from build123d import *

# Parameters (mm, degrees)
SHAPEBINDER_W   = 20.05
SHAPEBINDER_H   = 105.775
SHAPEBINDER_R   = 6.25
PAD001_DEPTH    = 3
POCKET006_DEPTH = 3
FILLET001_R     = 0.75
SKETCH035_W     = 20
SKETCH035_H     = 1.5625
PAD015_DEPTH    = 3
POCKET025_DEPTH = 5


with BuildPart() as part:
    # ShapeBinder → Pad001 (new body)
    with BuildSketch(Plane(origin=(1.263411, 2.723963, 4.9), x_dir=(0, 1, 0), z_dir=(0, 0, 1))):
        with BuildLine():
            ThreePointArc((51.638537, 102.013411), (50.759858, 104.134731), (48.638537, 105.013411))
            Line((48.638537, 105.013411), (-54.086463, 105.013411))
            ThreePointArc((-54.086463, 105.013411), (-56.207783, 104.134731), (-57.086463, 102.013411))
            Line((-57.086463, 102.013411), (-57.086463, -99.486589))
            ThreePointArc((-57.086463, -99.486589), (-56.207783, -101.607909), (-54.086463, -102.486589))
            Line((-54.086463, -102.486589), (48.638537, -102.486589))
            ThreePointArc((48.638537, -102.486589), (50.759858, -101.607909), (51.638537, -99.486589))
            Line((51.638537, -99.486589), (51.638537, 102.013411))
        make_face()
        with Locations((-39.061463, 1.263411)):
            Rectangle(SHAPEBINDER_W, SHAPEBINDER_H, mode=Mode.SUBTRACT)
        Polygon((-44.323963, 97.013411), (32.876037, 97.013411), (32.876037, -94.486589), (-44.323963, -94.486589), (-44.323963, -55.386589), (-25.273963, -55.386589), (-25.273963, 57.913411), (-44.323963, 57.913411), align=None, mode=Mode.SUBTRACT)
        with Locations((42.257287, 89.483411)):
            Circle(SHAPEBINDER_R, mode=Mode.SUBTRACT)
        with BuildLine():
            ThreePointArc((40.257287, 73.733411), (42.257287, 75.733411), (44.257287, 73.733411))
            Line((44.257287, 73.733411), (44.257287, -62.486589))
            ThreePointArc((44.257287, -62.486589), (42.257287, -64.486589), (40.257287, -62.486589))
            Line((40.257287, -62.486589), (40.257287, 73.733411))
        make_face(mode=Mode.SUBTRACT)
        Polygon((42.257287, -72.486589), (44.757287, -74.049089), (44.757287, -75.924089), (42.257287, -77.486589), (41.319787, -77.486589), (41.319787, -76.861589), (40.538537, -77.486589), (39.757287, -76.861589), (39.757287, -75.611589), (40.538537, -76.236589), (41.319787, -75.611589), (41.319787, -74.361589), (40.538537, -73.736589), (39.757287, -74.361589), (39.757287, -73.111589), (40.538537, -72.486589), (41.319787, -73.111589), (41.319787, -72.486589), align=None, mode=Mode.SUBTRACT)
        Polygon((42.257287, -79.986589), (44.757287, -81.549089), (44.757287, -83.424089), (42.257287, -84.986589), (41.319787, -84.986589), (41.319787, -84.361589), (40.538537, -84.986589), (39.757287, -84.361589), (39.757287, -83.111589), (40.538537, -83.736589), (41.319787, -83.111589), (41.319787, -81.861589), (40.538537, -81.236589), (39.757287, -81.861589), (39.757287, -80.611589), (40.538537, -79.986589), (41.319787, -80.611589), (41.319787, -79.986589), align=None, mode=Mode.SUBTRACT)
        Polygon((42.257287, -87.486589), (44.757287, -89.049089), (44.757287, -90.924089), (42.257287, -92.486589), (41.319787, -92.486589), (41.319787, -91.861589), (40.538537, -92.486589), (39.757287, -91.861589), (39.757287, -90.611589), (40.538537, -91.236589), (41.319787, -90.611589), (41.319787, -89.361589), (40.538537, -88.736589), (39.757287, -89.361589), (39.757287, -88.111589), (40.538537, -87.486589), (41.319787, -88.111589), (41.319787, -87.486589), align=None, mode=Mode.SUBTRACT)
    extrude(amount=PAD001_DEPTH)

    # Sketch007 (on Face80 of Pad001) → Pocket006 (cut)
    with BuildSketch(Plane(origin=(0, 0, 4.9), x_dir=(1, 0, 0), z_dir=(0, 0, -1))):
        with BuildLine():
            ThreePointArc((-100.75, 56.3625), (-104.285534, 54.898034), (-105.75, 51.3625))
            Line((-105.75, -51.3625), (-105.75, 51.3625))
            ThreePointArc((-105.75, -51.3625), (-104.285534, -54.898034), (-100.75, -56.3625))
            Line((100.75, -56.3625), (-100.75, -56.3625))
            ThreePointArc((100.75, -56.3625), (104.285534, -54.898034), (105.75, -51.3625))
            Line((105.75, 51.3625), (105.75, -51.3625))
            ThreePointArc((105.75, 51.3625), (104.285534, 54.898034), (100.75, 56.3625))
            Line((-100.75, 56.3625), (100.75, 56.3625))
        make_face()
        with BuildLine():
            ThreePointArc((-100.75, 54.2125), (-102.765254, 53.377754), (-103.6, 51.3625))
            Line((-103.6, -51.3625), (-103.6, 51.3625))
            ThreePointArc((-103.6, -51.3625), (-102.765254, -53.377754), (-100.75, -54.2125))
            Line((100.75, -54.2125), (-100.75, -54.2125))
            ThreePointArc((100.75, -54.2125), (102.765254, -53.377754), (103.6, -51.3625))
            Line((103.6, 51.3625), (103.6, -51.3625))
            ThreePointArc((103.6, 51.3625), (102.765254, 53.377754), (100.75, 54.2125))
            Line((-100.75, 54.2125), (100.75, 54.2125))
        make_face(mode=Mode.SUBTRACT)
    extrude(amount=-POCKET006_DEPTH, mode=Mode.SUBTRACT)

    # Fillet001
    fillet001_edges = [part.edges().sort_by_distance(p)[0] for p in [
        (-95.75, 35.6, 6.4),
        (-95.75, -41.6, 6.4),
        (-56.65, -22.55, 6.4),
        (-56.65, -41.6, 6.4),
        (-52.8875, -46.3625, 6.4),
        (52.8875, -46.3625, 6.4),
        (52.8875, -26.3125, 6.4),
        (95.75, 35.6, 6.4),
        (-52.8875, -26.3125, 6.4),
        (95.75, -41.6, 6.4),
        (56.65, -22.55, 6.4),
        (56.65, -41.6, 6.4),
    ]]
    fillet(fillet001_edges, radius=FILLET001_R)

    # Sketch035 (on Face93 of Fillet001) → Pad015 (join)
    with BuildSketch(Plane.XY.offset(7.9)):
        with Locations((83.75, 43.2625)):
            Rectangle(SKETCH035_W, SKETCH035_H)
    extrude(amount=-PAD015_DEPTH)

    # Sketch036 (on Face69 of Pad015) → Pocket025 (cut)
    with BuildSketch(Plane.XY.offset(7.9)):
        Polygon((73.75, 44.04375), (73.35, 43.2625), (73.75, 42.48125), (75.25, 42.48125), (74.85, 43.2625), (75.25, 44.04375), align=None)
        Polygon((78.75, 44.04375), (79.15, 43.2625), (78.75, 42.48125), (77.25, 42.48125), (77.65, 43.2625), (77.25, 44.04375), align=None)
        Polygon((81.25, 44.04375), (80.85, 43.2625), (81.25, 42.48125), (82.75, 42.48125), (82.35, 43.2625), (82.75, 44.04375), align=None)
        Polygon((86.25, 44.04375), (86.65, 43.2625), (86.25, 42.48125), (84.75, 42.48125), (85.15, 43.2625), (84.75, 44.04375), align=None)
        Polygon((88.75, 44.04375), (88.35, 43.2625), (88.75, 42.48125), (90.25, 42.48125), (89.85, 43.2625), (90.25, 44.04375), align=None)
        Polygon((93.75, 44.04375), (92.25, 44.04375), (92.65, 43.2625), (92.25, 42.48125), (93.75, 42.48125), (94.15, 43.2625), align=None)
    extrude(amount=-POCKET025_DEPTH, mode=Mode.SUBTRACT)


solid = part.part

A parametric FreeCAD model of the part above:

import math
import FreeCAD as App
import Part
import Sketcher

V = App.Vector
Q = App.Units.Quantity


def edges_at(feature, points):
    """Names of the edges that pass closest to the given points."""
    edges = feature.Shape.Edges
    near = lambda p: min(range(len(edges)), key=lambda i: edges[i].distToShape(Part.Vertex(*p))[0])
    return sorted({f"Edge{near(p) + 1}" for p in points})

doc = App.newDocument("Part")
body = doc.addObject("PartDesign::Body", "Body")

sketch1 = body.newObject("Sketcher::SketchObject", "Sketch")
sketch1.AttachmentSupport = (doc.getObject("XY_Plane"), [""])
sketch1.MapMode = "FlatFace"
sketch1.AttachmentOffset = App.Placement(V(0, 0, 4.9), App.Rotation())
sketch1.addGeometry([
    Part.ArcOfCircle(Part.Circle(V(-100.8, 51.4, 0), V(0, 0, 1), 3), math.radians(90), math.radians(180)),
    Part.LineSegment(V(-103.8, 51.4, 0), V(-103.8, -51.4, 0)),
    Part.ArcOfCircle(Part.Circle(V(-100.7, -51.4, 0), V(0, 0, 1), 3), math.radians(-180), math.radians(-90)),
    Part.LineSegment(V(-100.8, -54.4, 0), V(100.8, -54.4, 0)),
    Part.ArcOfCircle(Part.Circle(V(100.7, -51.4, 0), V(0, 0, 1), 3), math.radians(-90), math.radians(0)),
    Part.LineSegment(V(103.8, -51.4, 0), V(103.8, 51.4, 0)),
    Part.ArcOfCircle(Part.Circle(V(100.8, 51.4, 0), V(0, 0, 1), 3), math.radians(0), math.radians(90)),
    Part.LineSegment(V(100.8, 54.4, 0), V(-100.8, 54.4, 0)),
    Part.LineSegment(V(88.8, 44, 0), V(88.8, 45, 0)),
    Part.LineSegment(V(88.8, 45, 0), V(90.3, 47.5, 0)),
    Part.LineSegment(V(90.3, 47.5, 0), V(92.2, 47.5, 0)),
    Part.LineSegment(V(92.2, 47.5, 0), V(93.8, 45, 0)),
    Part.LineSegment(V(93.8, 45, 0), V(93.8, 44, 0)),
    Part.LineSegment(V(93.8, 44, 0), V(93.1, 44, 0)),
    Part.LineSegment(V(93.1, 44, 0), V(93.8, 43.3, 0)),
    Part.LineSegment(V(93.8, 43.3, 0), V(93.1, 42.5, 0)),
    Part.LineSegment(V(93.1, 42.5, 0), V(91.9, 42.5, 0)),
    Part.LineSegment(V(91.9, 42.5, 0), V(92.5, 43.3, 0)),
    Part.LineSegment(V(92.5, 43.3, 0), V(91.9, 44, 0)),
    Part.LineSegment(V(91.9, 44, 0), V(90.6, 44, 0)),
    Part.LineSegment(V(90.6, 44, 0), V(90, 43.3, 0)),
    Part.LineSegment(V(90, 43.3, 0), V(90.6, 42.5, 0)),
    Part.LineSegment(V(90.6, 42.5, 0), V(89.4, 42.5, 0)),
    Part.LineSegment(V(89.4, 42.5, 0), V(88.8, 43.3, 0)),
    Part.LineSegment(V(88.8, 43.3, 0), V(89.4, 44, 0)),
    Part.LineSegment(V(89.4, 44, 0), V(88.8, 44, 0)),
    Part.LineSegment(V(81.2, 44, 0), V(81.2, 45, 0)),
    Part.LineSegment(V(81.2, 45, 0), V(82.8, 47.5, 0)),
    Part.LineSegment(V(82.8, 47.5, 0), V(84.7, 47.5, 0)),
    Part.LineSegment(V(84.7, 47.5, 0), V(86.2, 45, 0)),
    Part.LineSegment(V(86.2, 45, 0), V(86.2, 44, 0)),
    Part.LineSegment(V(86.2, 44, 0), V(85.6, 44, 0)),
    Part.LineSegment(V(85.6, 44, 0), V(86.2, 43.3, 0)),
    Part.LineSegment(V(86.2, 43.3, 0), V(85.6, 42.5, 0)),
    Part.LineSegment(V(85.6, 42.5, 0), V(84.4, 42.5, 0)),
    Part.LineSegment(V(84.4, 42.5, 0), V(85, 43.3, 0)),
    Part.LineSegment(V(85, 43.3, 0), V(84.4, 44, 0)),
    Part.LineSegment(V(84.4, 44, 0), V(83.1, 44, 0)),
    Part.LineSegment(V(83.1, 44, 0), V(82.5, 43.3, 0)),
    Part.LineSegment(V(82.5, 43.3, 0), V(83.1, 42.5, 0)),
    Part.LineSegment(V(83.1, 42.5, 0), V(81.9, 42.5, 0)),
    Part.LineSegment(V(81.9, 42.5, 0), V(81.2, 43.3, 0)),
    Part.LineSegment(V(81.2, 43.3, 0), V(81.9, 44, 0)),
    Part.LineSegment(V(81.9, 44, 0), V(81.2, 44, 0)),
    Part.LineSegment(V(73.8, 44, 0), V(73.8, 45, 0)),
    Part.LineSegment(V(73.8, 45, 0), V(75.3, 47.5, 0)),
    Part.LineSegment(V(75.3, 47.5, 0), V(77.2, 47.5, 0)),
    Part.LineSegment(V(77.2, 47.5, 0), V(78.8, 45, 0)),
    Part.LineSegment(V(78.8, 45, 0), V(78.8, 44, 0)),
    Part.LineSegment(V(78.8, 44, 0), V(78.1, 44, 0)),
    Part.LineSegment(V(78.1, 44, 0), V(78.8, 43.3, 0)),
    Part.LineSegment(V(78.8, 43.3, 0), V(78.1, 42.5, 0)),
    Part.LineSegment(V(78.1, 42.5, 0), V(76.9, 42.5, 0)),
    Part.LineSegment(V(76.9, 42.5, 0), V(77.5, 43.3, 0)),
    Part.LineSegment(V(77.5, 43.3, 0), V(76.9, 44, 0)),
    Part.LineSegment(V(76.9, 44, 0), V(75.6, 44, 0)),
    Part.LineSegment(V(75.6, 44, 0), V(75, 43.3, 0)),
    Part.LineSegment(V(75, 43.3, 0), V(75.6, 42.5, 0)),
    Part.LineSegment(V(75.6, 42.5, 0), V(74.4, 42.5, 0)),
    Part.LineSegment(V(74.4, 42.5, 0), V(73.8, 43.3, 0)),
    Part.LineSegment(V(73.8, 43.3, 0), V(74.4, 44, 0)),
    Part.LineSegment(V(74.4, 44, 0), V(73.8, 44, 0)),
    Part.LineSegment(V(52.9, -26.3, 0), V(52.9, -46.4, 0)),
    Part.LineSegment(V(52.9, -46.4, 0), V(-52.9, -46.4, 0)),
    Part.LineSegment(V(-52.9, -46.4, 0), V(-52.9, -26.3, 0)),
    Part.LineSegment(V(-52.9, -26.3, 0), V(52.9, -26.3, 0)),
    Part.LineSegment(V(-56.6, -41.6, 0), V(-95.8, -41.6, 0)),
    Part.LineSegment(V(-95.8, -41.6, 0), V(-95.8, 35.6, 0)),
    Part.LineSegment(V(-95.8, 35.6, 0), V(95.8, 35.6, 0)),
    Part.LineSegment(V(95.8, 35.6, 0), V(95.8, -41.6, 0)),
    Part.LineSegment(V(95.8, -41.6, 0), V(56.6, -41.6, 0)),
    Part.LineSegment(V(56.6, -41.6, 0), V(56.6, -22.6, 0)),
    Part.LineSegment(V(56.6, -22.6, 0), V(-56.6, -22.6, 0)),
    Part.LineSegment(V(-56.6, -22.6, 0), V(-56.6, -41.6, 0)),
    Part.LineSegment(V(63.8, 43, 0), V(-72.5, 43, 0)),
    Part.ArcOfCircle(Part.Circle(V(-72.5, 45, 0), V(0, 0, 1), 2), math.radians(90), math.radians(270)),
    Part.LineSegment(V(-72.5, 47, 0), V(63.8, 47, 0)),
    Part.ArcOfCircle(Part.Circle(V(63.8, 45, 0), V(0, 0, 1), 2), math.radians(-90), math.radians(90)),
    Part.Circle(V(-88.2, 45, 0), V(0, 0, 1), 6.2),
], False)
sketch1.addConstraint([
    Sketcher.Constraint("Tangent", 0, 2, 1, 1),
    Sketcher.Constraint("Tangent", 1, 2, 2, 1),
    Sketcher.Constraint("Tangent", 2, 2, 3, 1),
    Sketcher.Constraint("Tangent", 3, 2, 4, 1),
    Sketcher.Constraint("Tangent", 4, 2, 5, 1),
    Sketcher.Constraint("Tangent", 5, 2, 6, 1),
    Sketcher.Constraint("Tangent", 6, 2, 7, 1),
    Sketcher.Constraint("Tangent", 7, 2, 0, 1),
    Sketcher.Constraint("Coincident", 8, 2, 9, 1),
    Sketcher.Constraint("Coincident", 9, 2, 10, 1),
    Sketcher.Constraint("Coincident", 10, 2, 11, 1),
    Sketcher.Constraint("Coincident", 11, 2, 12, 1),
    Sketcher.Constraint("Coincident", 12, 2, 13, 1),
    Sketcher.Constraint("Coincident", 13, 2, 14, 1),
    Sketcher.Constraint("Coincident", 14, 2, 15, 1),
    Sketcher.Constraint("Coincident", 15, 2, 16, 1),
    Sketcher.Constraint("Coincident", 16, 2, 17, 1),
    Sketcher.Constraint("Coincident", 17, 2, 18, 1),
    Sketcher.Constraint("Coincident", 18, 2, 19, 1),
    Sketcher.Constraint("Coincident", 19, 2, 20, 1),
    Sketcher.Constraint("Coincident", 20, 2, 21, 1),
    Sketcher.Constraint("Coincident", 21, 2, 22, 1),
    Sketcher.Constraint("Coincident", 22, 2, 23, 1),
    Sketcher.Constraint("Coincident", 23, 2, 24, 1),
    Sketcher.Constraint("Coincident", 24, 2, 25, 1),
    Sketcher.Constraint("Coincident", 25, 2, 8, 1),
    Sketcher.Constraint("Coincident", 26, 2, 27, 1),
    Sketcher.Constraint("Coincident", 27, 2, 28, 1),
    Sketcher.Constraint("Coincident", 28, 2, 29, 1),
    Sketcher.Constraint("Coincident", 29, 2, 30, 1),
    Sketcher.Constraint("Coincident", 30, 2, 31, 1),
    Sketcher.Constraint("Coincident", 31, 2, 32, 1),
    Sketcher.Constraint("Coincident", 32, 2, 33, 1),
    Sketcher.Constraint("Coincident", 33, 2, 34, 1),
    Sketcher.Constraint("Coincident", 34, 2, 35, 1),
    Sketcher.Constraint("Coincident", 35, 2, 36, 1),
    Sketcher.Constraint("Coincident", 36, 2, 37, 1),
    Sketcher.Constraint("Coincident", 37, 2, 38, 1),
    Sketcher.Constraint("Coincident", 38, 2, 39, 1),
    Sketcher.Constraint("Coincident", 39, 2, 40, 1),
    Sketcher.Constraint("Coincident", 40, 2, 41, 1),
    Sketcher.Constraint("Coincident", 41, 2, 42, 1),
    Sketcher.Constraint("Coincident", 42, 2, 43, 1),
    Sketcher.Constraint("Coincident", 43, 2, 26, 1),
    Sketcher.Constraint("Coincident", 44, 2, 45, 1),
    Sketcher.Constraint("Coincident", 45, 2, 46, 1),
    Sketcher.Constraint("Coincident", 46, 2, 47, 1),
    Sketcher.Constraint("Coincident", 47, 2, 48, 1),
    Sketcher.Constraint("Coincident", 48, 2, 49, 1),
    Sketcher.Constraint("Coincident", 49, 2, 50, 1),
    Sketcher.Constraint("Coincident", 50, 2, 51, 1),
    Sketcher.Constraint("Coincident", 51, 2, 52, 1),
    Sketcher.Constraint("Coincident", 52, 2, 53, 1),
    Sketcher.Constraint("Coincident", 53, 2, 54, 1),
    Sketcher.Constraint("Coincident", 54, 2, 55, 1),
    Sketcher.Constraint("Coincident", 55, 2, 56, 1),
    Sketcher.Constraint("Coincident", 56, 2, 57, 1),
    Sketcher.Constraint("Coincident", 57, 2, 58, 1),
    Sketcher.Constraint("Coincident", 58, 2, 59, 1),
    Sketcher.Constraint("Coincident", 59, 2, 60, 1),
    Sketcher.Constraint("Coincident", 60, 2, 61, 1),
    Sketcher.Constraint("Coincident", 61, 2, 44, 1),
    Sketcher.Constraint("Coincident", 62, 2, 63, 1),
    Sketcher.Constraint("Coincident", 63, 2, 64, 1),
    Sketcher.Constraint("Coincident", 64, 2, 65, 1),
    Sketcher.Constraint("Coincident", 65, 2, 62, 1),
    Sketcher.Constraint("Coincident", 66, 2, 67, 1),
    Sketcher.Constraint("Coincident", 67, 2, 68, 1),
    Sketcher.Constraint("Coincident", 68, 2, 69, 1),
    Sketcher.Constraint("Coincident", 69, 2, 70, 1),
    Sketcher.Constraint("Coincident", 70, 2, 71, 1),
    Sketcher.Constraint("Coincident", 71, 2, 72, 1),
    Sketcher.Constraint("Coincident", 72, 2, 73, 1),
    Sketcher.Constraint("Coincident", 73, 2, 66, 1),
    Sketcher.Constraint("Tangent", 74, 2, 75, 2),
    Sketcher.Constraint("Tangent", 75, 1, 76, 1),
    Sketcher.Constraint("Tangent", 76, 2, 77, 2),
    Sketcher.Constraint("Tangent", 77, 1, 74, 1),
    Sketcher.Constraint("Vertical", 1),
    Sketcher.Constraint("Horizontal", 3),
    Sketcher.Constraint("Vertical", 5),
    Sketcher.Constraint("Horizontal", 7),
    Sketcher.Constraint("Vertical", 8),
    Sketcher.Constraint("Horizontal", 10),
    Sketcher.Constraint("Vertical", 12),
    Sketcher.Constraint("Horizontal", 13),
    Sketcher.Constraint("Horizontal", 16),
    Sketcher.Constraint("Horizontal", 19),
    Sketcher.Constraint("Horizontal", 22),
    Sketcher.Constraint("Horizontal", 25),
    Sketcher.Constraint("Vertical", 26),
    Sketcher.Constraint("Horizontal", 28),
    Sketcher.Constraint("Vertical", 30),
    Sketcher.Constraint("Horizontal", 31),
    Sketcher.Constraint("Horizontal", 34),
    Sketcher.Constraint("Horizontal", 37),
    Sketcher.Constraint("Horizontal", 40),
    Sketcher.Constraint("Horizontal", 43),
    Sketcher.Constraint("Vertical", 44),
    Sketcher.Constraint("Horizontal", 46),
    Sketcher.Constraint("Vertical", 48),
    Sketcher.Constraint("Horizontal", 49),
    Sketcher.Constraint("Horizontal", 52),
    Sketcher.Constraint("Horizontal", 55),
    Sketcher.Constraint("Horizontal", 58),
    Sketcher.Constraint("Horizontal", 61),
    Sketcher.Constraint("Vertical", 62),
    Sketcher.Constraint("Horizontal", 63),
    Sketcher.Constraint("Vertical", 64),
    Sketcher.Constraint("Horizontal", 65),
    Sketcher.Constraint("Horizontal", 66),
    Sketcher.Constraint("Vertical", 67),
    Sketcher.Constraint("Horizontal", 68),
    Sketcher.Constraint("Vertical", 69),
    Sketcher.Constraint("Horizontal", 70),
    Sketcher.Constraint("Vertical", 71),
    Sketcher.Constraint("Horizontal", 72),
    Sketcher.Constraint("Vertical", 73),
    Sketcher.Constraint("Horizontal", 74),
    Sketcher.Constraint("Horizontal", 76),
    Sketcher.Constraint("Equal", 0, 2),
    Sketcher.Constraint("Equal", 2, 4),
    Sketcher.Constraint("Equal", 4, 6),
    Sketcher.Constraint("Symmetric", 0, 3, 4, 3, -1, 1),
    Sketcher.Constraint("Symmetric", 66, 2, 69, 2, -2),
    Sketcher.Constraint("Parallel", 15, 17),
    Sketcher.Constraint("Parallel", 14, 18),
    Sketcher.Constraint("Parallel", 17, 20),
    Sketcher.Constraint("Parallel", 18, 21),
    Sketcher.Constraint("Parallel", 21, 23),
    Sketcher.Constraint("Parallel", 20, 24),
    Sketcher.Constraint("Parallel", 9, 27),
    Sketcher.Constraint("Parallel", 11, 29),
    Sketcher.Constraint("Parallel", 23, 32),
    Sketcher.Constraint("Parallel", 24, 33),
    Sketcher.Constraint("Parallel", 33, 35),
    Sketcher.Constraint("Parallel", 32, 36),
    Sketcher.Constraint("Parallel", 35, 38),
    Sketcher.Constraint("Parallel", 36, 39),
    Sketcher.Constraint("Parallel", 39, 41),
    Sketcher.Constraint("Parallel", 38, 42),
    Sketcher.Constraint("Parallel", 27, 45),
    Sketcher.Constraint("Parallel", 29, 47),
    Sketcher.Constraint("Parallel", 41, 50),
    Sketcher.Constraint("Parallel", 42, 51),
    Sketcher.Constraint("Parallel", 51, 53),
    Sketcher.Constraint("Parallel", 50, 54),
    Sketcher.Constraint("Parallel", 53, 56),
    Sketcher.Constraint("Parallel", 54, 57),
    Sketcher.Constraint("Parallel", 57, 59),
    Sketcher.Constraint("Parallel", 56, 60),
    Sketcher.Constraint("Horizontal", 77, 3, 78, 3),
    Sketcher.Constraint("Horizontal", 78, 3, 8, 2),
    Sketcher.Constraint("Horizontal", 8, 2, 11, 2),
    Sketcher.Constraint("Horizontal", 14, 2, 17, 2),
    Sketcher.Constraint("Horizontal", 13, 2, 18, 2),
    Sketcher.Constraint("Horizontal", 17, 2, 20, 2),
    Sketcher.Constraint("Horizontal", 16, 2, 21, 2),
    Sketcher.Constraint("Horizontal", 20, 2, 23, 2),
    Sketcher.Constraint("Horizontal", 19, 2, 24, 2),
    Sketcher.Constraint("Horizontal", 11, 2, 26, 2),
    Sketcher.Constraint("Horizontal", 10, 2, 27, 2),
    Sketcher.Constraint("Horizontal", 26, 2, 29, 2),
    Sketcher.Constraint("Horizontal", 25, 2, 30, 2),
    Sketcher.Constraint("Horizontal", 23, 2, 32, 2),
    Sketcher.Constraint("Horizontal", 22, 2, 33, 2),
    Sketcher.Constraint("Horizontal", 32, 2, 35, 2),
    Sketcher.Constraint("Horizontal", 31, 2, 36, 2),
    Sketcher.Constraint("Horizontal", 35, 2, 38, 2),
    Sketcher.Constraint("Horizontal", 34, 2, 39, 2),
    Sketcher.Constraint("Horizontal", 38, 2, 41, 2),
    Sketcher.Constraint("Horizontal", 37, 2, 42, 2),
    Sketcher.Constraint("Horizontal", 29, 2, 44, 2),
    Sketcher.Constraint("Horizontal", 28, 2, 45, 2),
    Sketcher.Constraint("Horizontal", 44, 2, 47, 2),
    Sketcher.Constraint("Horizontal", 43, 2, 48, 2),
    Sketcher.Constraint("Horizontal", 41, 2, 50, 2),
    Sketcher.Constraint("Horizontal", 40, 2, 51, 2),
    Sketcher.Constraint("Horizontal", 50, 2, 53, 2),
    Sketcher.Constraint("Horizontal", 49, 2, 54, 2),
    Sketcher.Constraint("Horizontal", 53, 2, 56, 2),
    Sketcher.Constraint("Horizontal", 52, 2, 57, 2),
    Sketcher.Constraint("Horizontal", 56, 2, 59, 2),
    Sketcher.Constraint("Horizontal", 55, 2, 60, 2),
    Sketcher.Constraint("Vertical", 12, 2, 14, 2),
    Sketcher.Constraint("Vertical", 13, 2, 15, 2),
    Sketcher.Constraint("Vertical", 19, 2, 21, 2),
    Sketcher.Constraint("Vertical", 8, 2, 23, 2),
    Sketcher.Constraint("Vertical", 30, 2, 32, 2),
    Sketcher.Constraint("Vertical", 26, 2, 41, 2),
    Sketcher.Constraint("Vertical", 48, 2, 50, 2),
    Sketcher.Constraint("Vertical", 44, 2, 59, 2),
    Sketcher.Constraint("Equal", 16, 19),
    Sketcher.Constraint("Equal", 19, 22),
    Sketcher.Constraint("Equal", 10, 28),
    Sketcher.Constraint("Equal", 22, 34),
    Sketcher.Constraint("Equal", 34, 37),
    Sketcher.Constraint("Equal", 28, 46),
    Sketcher.Constraint("Equal", 40, 52),
    Sketcher.Constraint("Equal", 52, 55),
    Sketcher.Constraint("Equal", 66, 70),
    Sketcher.Constraint("Equal", 9, 11),
    Sketcher.Constraint("Radius", 0, Q("2.999999 mm")),
    Sketcher.Constraint("Radius", 75, Q("2 mm")),
    Sketcher.Constraint("Diameter", 78, Q("12.5 mm")),
    Sketcher.Constraint("DistanceX", 3, 1, 3, 2, Q("201.5 mm")),
    Sketcher.Constraint("DistanceX", 66, 2, 66, 1, Q("39.1 mm")),
    Sketcher.Constraint("DistanceX", 68, 1, 68, 2, Q("191.5 mm")),
    Sketcher.Constraint("DistanceY", 67, 1, 67, 2, Q("77.2 mm")),
    Sketcher.Constraint("DistanceX", -1, 1, 20, 2, Q("90 mm")),
    Sketcher.Constraint("DistanceX", -1, 1, 35, 2, Q("85 mm")),
    Sketcher.Constraint("DistanceX", -1, 1, 56, 2, Q("75 mm")),
    Sketcher.Constraint("DistanceX", 16, 2, 16, 1, Q("1.25 mm")),
    Sketcher.Constraint("DistanceX", 74, 2, 74, 1, Q("136.22 mm")),
    Sketcher.Constraint("DistanceY", 62, 2, 62, 1, Q("20.05 mm")),
    Sketcher.Constraint("DistanceY", 71, 1, 71, 2, Q("19.05 mm")),
    Sketcher.Constraint("DistanceX", -1, 1, 17, 2, Q("92.5 mm")),
    Sketcher.Constraint("DistanceY", 66, 2, -1, 1, Q("41.6 mm")),
    Sketcher.Constraint("DistanceX", 10, 1, 10, 2, Q("1.875 mm")),
    Sketcher.Constraint("DistanceX", 63, 2, 63, 1, Q("105.775 mm")),
    Sketcher.Constraint("DistanceY", 1, 2, 1, 1, Q("102.725 mm")),
    Sketcher.Constraint("DistanceX", 75, 3, -1, 1, Q("72.47 mm")),
    Sketcher.Constraint("DistanceX", 78, 3, -1, 1, Q("88.22 mm")),
    Sketcher.Constraint("DistanceY", 8, 1, 8, 2, Q("0.9375 mm")),
    Sketcher.Constraint("DistanceY", -1, 1, 14, 2, Q("43.2625 mm")),
    Sketcher.Constraint("DistanceX", -1, 1, 62, 2, Q("52.8875 mm")),
    Sketcher.Constraint("DistanceY", 62, 2, -1, 1, Q("46.3625 mm")),
    Sketcher.Constraint("Distance", 9, Q("2.948119 mm")),
    Sketcher.Constraint("Distance", 14, Q("1.000488 mm")),
])
pad1 = body.newObject("PartDesign::Pad", "Pad")
pad1.Profile = sketch1
pad1.Length = 3

sketch2 = body.newObject("Sketcher::SketchObject", "Sketch001")
sketch2.AttachmentSupport = (doc.getObject("XY_Plane"), [""])
sketch2.MapMode = "FlatFace"
sketch2.AttachmentOffset = App.Placement(V(0, 0, 4.9), App.Rotation())
sketch2.addGeometry([
    Part.ArcOfCircle(Part.Circle(V(-100.8, -51.4, 0), V(0, 0, 1), 5), math.radians(180), math.radians(270)),
    Part.LineSegment(V(-105.8, -51.4, 0), V(-105.8, 51.4, 0)),
    Part.ArcOfCircle(Part.Circle(V(-100.8, 51.4, 0), V(0, 0, 1), 5), math.radians(90), math.radians(180)),
    Part.LineSegment(V(-100.8, 56.4, 0), V(100.8, 56.4, 0)),
    Part.ArcOfCircle(Part.Circle(V(100.8, 51.4, 0), V(0, 0, 1), 5), math.radians(0), math.radians(90)),
    Part.LineSegment(V(105.8, 51.4, 0), V(105.8, -51.4, 0)),
    Part.ArcOfCircle(Part.Circle(V(100.8, -51.4, 0), V(0, 0, 1), 5), math.radians(-90), math.radians(0)),
    Part.LineSegment(V(100.8, -56.4, 0), V(-100.8, -56.4, 0)),
    Part.ArcOfCircle(Part.Circle(V(-100.7, -51.4, 0), V(0, 0, 1), 2.9), math.radians(-180), math.radians(-90)),
    Part.LineSegment(V(-100.8, -54.2, 0), V(100.8, -54.2, 0)),
    Part.ArcOfCircle(Part.Circle(V(100.7, -51.4, 0), V(0, 0, 1), 2.9), math.radians(-90), math.radians(0)),
    Part.LineSegment(V(103.6, -51.4, 0), V(103.6, 51.4, 0)),
    Part.ArcOfCircle(Part.Circle(V(100.7, 51.4, 0), V(0, 0, 1), 2.9), math.radians(0), math.radians(90)),
    Part.LineSegment(V(100.8, 54.2, 0), V(-100.8, 54.2, 0)),
    Part.ArcOfCircle(Part.Circle(V(-100.7, 51.4, 0), V(0, 0, 1), 2.9), math.radians(90), math.radians(180)),
    Part.LineSegment(V(-103.6, 51.4, 0), V(-103.6, -51.4, 0)),
], False)
sketch2.addConstraint([
    Sketcher.Constraint("Tangent", 0, 1, 1, 1),
    Sketcher.Constraint("Tangent", 1, 2, 2, 2),
    Sketcher.Constraint("Tangent", 2, 1, 3, 1),
    Sketcher.Constraint("Tangent", 3, 2, 4, 2),
    Sketcher.Constraint("Tangent", 4, 1, 5, 1),
    Sketcher.Constraint("Tangent", 5, 2, 6, 2),
    Sketcher.Constraint("Tangent", 6, 1, 7, 1),
    Sketcher.Constraint("Tangent", 7, 2, 0, 2),
    Sketcher.Constraint("Tangent", 8, 2, 9, 1),
    Sketcher.Constraint("Tangent", 9, 2, 10, 1),
    Sketcher.Constraint("Tangent", 10, 2, 11, 1),
    Sketcher.Constraint("Tangent", 11, 2, 12, 1),
    Sketcher.Constraint("Tangent", 12, 2, 13, 1),
    Sketcher.Constraint("Tangent", 13, 2, 14, 1),
    Sketcher.Constraint("Tangent", 14, 2, 15, 1),
    Sketcher.Constraint("Tangent", 15, 2, 8, 1),
    Sketcher.Constraint("Vertical", 1),
    Sketcher.Constraint("Horizontal", 3),
    Sketcher.Constraint("Vertical", 5),
    Sketcher.Constraint("Horizontal", 7),
    Sketcher.Constraint("Horizontal", 9),
    Sketcher.Constraint("Vertical", 11),
    Sketcher.Constraint("Horizontal", 13),
    Sketcher.Constraint("Vertical", 15),
    Sketcher.Constraint("Coincident", 8, 3, 0, 3),
    Sketcher.Constraint("Coincident", 10, 3, 6, 3),
    Sketcher.Constraint("Coincident", 12, 3, 4, 3),
    Sketcher.Constraint("Equal", 0, 2),
    Sketcher.Constraint("Equal", 2, 4),
    Sketcher.Constraint("Equal", 4, 6),
    Sketcher.Constraint("Equal", 12, 14),
    Sketcher.Constraint("Symmetric", 0, 3, 4, 3, -1, 1),
    Sketcher.Constraint("Radius", 0, Q("5 mm")),
    Sketcher.Constraint("Radius", 8, Q("2.850001 mm")),
    Sketcher.Constraint("DistanceX", 3, 1, 3, 2, Q("201.5 mm")),
    Sketcher.Constraint("DistanceY", 1, 1, 1, 2, Q("102.725 mm")),
])
pocket1 = body.newObject("PartDesign::Pocket", "Pocket")
pocket1.Profile = sketch2
pocket1.Length = 3
pocket1.Reversed = True
doc.recompute()

fillet = body.newObject("PartDesign::Fillet", "Fillet")
fillet.Base = (pocket1, edges_at(pocket1, [
    (-95.75, 35.6, 6.4),
    (-95.75, -41.6, 6.4),
    (-56.65, -22.55, 6.4),
    (-56.65, -41.6, 6.4),
    (-52.888, -46.362, 6.4),
    (52.888, -46.362, 6.4),
    (52.888, -26.312, 6.4),
    (95.75, 35.6, 6.4),
    (-52.888, -26.312, 6.4),
    (95.75, -41.6, 6.4),
    (56.65, -22.55, 6.4),
    (56.65, -41.6, 6.4),
]))
fillet.Radius = 0.75

sketch3 = body.newObject("Sketcher::SketchObject", "Sketch002")
sketch3.AttachmentSupport = (doc.getObject("XY_Plane"), [""])
sketch3.MapMode = "FlatFace"
sketch3.AttachmentOffset = App.Placement(V(0, 0, 7.9), App.Rotation())
sketch3.addGeometry([
    Part.LineSegment(V(73.8, 44, 0), V(73.8, 42.5, 0)),
    Part.LineSegment(V(73.8, 42.5, 0), V(93.8, 42.5, 0)),
    Part.LineSegment(V(93.8, 42.5, 0), V(93.8, 44, 0)),
    Part.LineSegment(V(93.8, 44, 0), V(73.8, 44, 0)),
], False)
sketch3.addConstraint([
    Sketcher.Constraint("Coincident", 0, 2, 1, 1),
    Sketcher.Constraint("Coincident", 1, 2, 2, 1),
    Sketcher.Constraint("Coincident", 2, 2, 3, 1),
    Sketcher.Constraint("Coincident", 3, 2, 0, 1),
    Sketcher.Constraint("Vertical", 0),
    Sketcher.Constraint("Horizontal", 1),
    Sketcher.Constraint("Vertical", 2),
    Sketcher.Constraint("Horizontal", 3),
    Sketcher.Constraint("DistanceX", 1, 1, 1, 2, Q("20 mm")),
    Sketcher.Constraint("DistanceX", -1, 1, 0, 2, Q("73.75 mm")),
    Sketcher.Constraint("DistanceY", 0, 2, 0, 1, Q("1.5625 mm")),
    Sketcher.Constraint("DistanceY", -1, 1, 0, 2, Q("42.48125 mm")),
])
pad2 = body.newObject("PartDesign::Pad", "Pad001")
pad2.Profile = sketch3
pad2.Length = 3
pad2.Reversed = True

sketch4 = body.newObject("Sketcher::SketchObject", "Sketch003")
sketch4.AttachmentSupport = (doc.getObject("XY_Plane"), [""])
sketch4.MapMode = "FlatFace"
sketch4.AttachmentOffset = App.Placement(V(0, 0, 7.9), App.Rotation())
sketch4.addGeometry([
    Part.LineSegment(V(73.8, 44, 0), V(73.3, 43.3, 0)),
    Part.LineSegment(V(73.3, 43.3, 0), V(73.8, 42.5, 0)),
    Part.LineSegment(V(73.8, 42.5, 0), V(75.2, 42.5, 0)),
    Part.LineSegment(V(75.2, 42.5, 0), V(74.8, 43.3, 0)),
    Part.LineSegment(V(74.8, 43.3, 0), V(75.2, 44, 0)),
    Part.LineSegment(V(75.2, 44, 0), V(73.8, 44, 0)),
    Part.LineSegment(V(79.2, 43.3, 0), V(78.8, 44, 0)),
    Part.LineSegment(V(78.8, 44, 0), V(77.2, 44, 0)),
    Part.LineSegment(V(77.2, 44, 0), V(77.7, 43.3, 0)),
    Part.LineSegment(V(77.7, 43.3, 0), V(77.2, 42.5, 0)),
    Part.LineSegment(V(77.2, 42.5, 0), V(78.8, 42.5, 0)),
    Part.LineSegment(V(78.8, 42.5, 0), V(79.2, 43.3, 0)),
    Part.LineSegment(V(81.2, 44, 0), V(80.8, 43.3, 0)),
    Part.LineSegment(V(80.8, 43.3, 0), V(81.2, 42.5, 0)),
    Part.LineSegment(V(81.2, 42.5, 0), V(82.8, 42.5, 0)),
    Part.LineSegment(V(82.8, 42.5, 0), V(82.3, 43.3, 0)),
    Part.LineSegment(V(82.3, 43.3, 0), V(82.8, 44, 0)),
    Part.LineSegment(V(82.8, 44, 0), V(81.2, 44, 0)),
    Part.LineSegment(V(86.7, 43.3, 0), V(86.2, 44, 0)),
    Part.LineSegment(V(86.2, 44, 0), V(84.8, 44, 0)),
    Part.LineSegment(V(84.8, 44, 0), V(85.2, 43.3, 0)),
    Part.LineSegment(V(85.2, 43.3, 0), V(84.8, 42.5, 0)),
    Part.LineSegment(V(84.8, 42.5, 0), V(86.2, 42.5, 0)),
    Part.LineSegment(V(86.2, 42.5, 0), V(86.7, 43.3, 0)),
    Part.LineSegment(V(88.8, 44, 0), V(88.3, 43.3, 0)),
    Part.LineSegment(V(88.3, 43.3, 0), V(88.8, 42.5, 0)),
    Part.LineSegment(V(88.8, 42.5, 0), V(90.2, 42.5, 0)),
    Part.LineSegment(V(90.2, 42.5, 0), V(89.8, 43.3, 0)),
    Part.LineSegment(V(89.8, 43.3, 0), V(90.2, 44, 0)),
    Part.LineSegment(V(90.2, 44, 0), V(88.8, 44, 0)),
    Part.LineSegment(V(93.8, 44, 0), V(92.2, 44, 0)),
    Part.LineSegment(V(92.2, 44, 0), V(92.7, 43.3, 0)),
    Part.LineSegment(V(92.7, 43.3, 0), V(92.2, 42.5, 0)),
    Part.LineSegment(V(92.2, 42.5, 0), V(93.8, 42.5, 0)),
    Part.LineSegment(V(93.8, 42.5, 0), V(94.2, 43.3, 0)),
    Part.LineSegment(V(94.2, 43.3, 0), V(93.8, 44, 0)),
], False)
sketch4.addConstraint([
    Sketcher.Constraint("Coincident", 0, 2, 1, 1),
    Sketcher.Constraint("Coincident", 1, 2, 2, 1),
    Sketcher.Constraint("Coincident", 2, 2, 3, 1),
    Sketcher.Constraint("Coincident", 3, 2, 4, 1),
    Sketcher.Constraint("Coincident", 4, 2, 5, 1),
    Sketcher.Constraint("Coincident", 5, 2, 0, 1),
    Sketcher.Constraint("Coincident", 6, 2, 7, 1),
    Sketcher.Constraint("Coincident", 7, 2, 8, 1),
    Sketcher.Constraint("Coincident", 8, 2, 9, 1),
    Sketcher.Constraint("Coincident", 9, 2, 10, 1),
    Sketcher.Constraint("Coincident", 10, 2, 11, 1),
    Sketcher.Constraint("Coincident", 11, 2, 6, 1),
    Sketcher.Constraint("Coincident", 12, 2, 13, 1),
    Sketcher.Constraint("Coincident", 13, 2, 14, 1),
    Sketcher.Constraint("Coincident", 14, 2, 15, 1),
    Sketcher.Constraint("Coincident", 15, 2, 16, 1),
    Sketcher.Constraint("Coincident", 16, 2, 17, 1),
    Sketcher.Constraint("Coincident", 17, 2, 12, 1),
    Sketcher.Constraint("Coincident", 18, 2, 19, 1),
    Sketcher.Constraint("Coincident", 19, 2, 20, 1),
    Sketcher.Constraint("Coincident", 20, 2, 21, 1),
    Sketcher.Constraint("Coincident", 21, 2, 22, 1),
    Sketcher.Constraint("Coincident", 22, 2, 23, 1),
    Sketcher.Constraint("Coincident", 23, 2, 18, 1),
    Sketcher.Constraint("Coincident", 24, 2, 25, 1),
    Sketcher.Constraint("Coincident", 25, 2, 26, 1),
    Sketcher.Constraint("Coincident", 26, 2, 27, 1),
    Sketcher.Constraint("Coincident", 27, 2, 28, 1),
    Sketcher.Constraint("Coincident", 28, 2, 29, 1),
    Sketcher.Constraint("Coincident", 29, 2, 24, 1),
    Sketcher.Constraint("Coincident", 30, 2, 31, 1),
    Sketcher.Constraint("Coincident", 31, 2, 32, 1),
    Sketcher.Constraint("Coincident", 32, 2, 33, 1),
    Sketcher.Constraint("Coincident", 33, 2, 34, 1),
    Sketcher.Constraint("Coincident", 34, 2, 35, 1),
    Sketcher.Constraint("Coincident", 35, 2, 30, 1),
    Sketcher.Constraint("Horizontal", 2),
    Sketcher.Constraint("Horizontal", 5),
    Sketcher.Constraint("Horizontal", 7),
    Sketcher.Constraint("Horizontal", 10),
    Sketcher.Constraint("Horizontal", 14),
    Sketcher.Constraint("Horizontal", 17),
    Sketcher.Constraint("Horizontal", 19),
    Sketcher.Constraint("Horizontal", 22),
    Sketcher.Constraint("Horizontal", 26),
    Sketcher.Constraint("Horizontal", 29),
    Sketcher.Constraint("Horizontal", 30),
    Sketcher.Constraint("Horizontal", 33),
    Sketcher.Constraint("Parallel", 1, 3),
    Sketcher.Constraint("Parallel", 0, 4),
    Sketcher.Constraint("Parallel", 3, 6),
    Sketcher.Constraint("Parallel", 6, 8),
    Sketcher.Constraint("Parallel", 4, 9),
    Sketcher.Constraint("Parallel", 9, 11),
    Sketcher.Constraint("Parallel", 11, 12),
    Sketcher.Constraint("Parallel", 8, 13),
    Sketcher.Constraint("Parallel", 13, 15),
    Sketcher.Constraint("Parallel", 12, 16),
    Sketcher.Constraint("Parallel", 15, 18),
    Sketcher.Constraint("Parallel", 18, 20),
    Sketcher.Constraint("Parallel", 16, 21),
    Sketcher.Constraint("Parallel", 21, 23),
    Sketcher.Constraint("Parallel", 23, 24),
    Sketcher.Constraint("Parallel", 20, 25),
    Sketcher.Constraint("Parallel", 25, 27),
    Sketcher.Constraint("Parallel", 24, 28),
    Sketcher.Constraint("Parallel", 27, 31),
    Sketcher.Constraint("Parallel", 28, 32),
    Sketcher.Constraint("Parallel", 32, 34),
    Sketcher.Constraint("Parallel", 31, 35),
    Sketcher.Constraint("Horizontal", 0, 2, 3, 2),
    Sketcher.Constraint("Horizontal", 5, 2, 6, 2),
    Sketcher.Constraint("Horizontal", 3, 2, 8, 2),
    Sketcher.Constraint("Horizontal", 2, 2, 9, 2),
    Sketcher.Constraint("Horizontal", 8, 2, 11, 2),
    Sketcher.Constraint("Horizontal", 11, 2, 12, 2),
    Sketcher.Constraint("Horizontal", 10, 2, 13, 2),
    Sketcher.Constraint("Horizontal", 12, 2, 15, 2),
    Sketcher.Constraint("Horizontal", 7, 2, 16, 2),
    Sketcher.Constraint("Horizontal", 17, 2, 18, 2),
    Sketcher.Constraint("Horizontal", 15, 2, 20, 2),
    Sketcher.Constraint("Horizontal", 14, 2, 21, 2),
    Sketcher.Constraint("Horizontal", 20, 2, 23, 2),
    Sketcher.Constraint("Horizontal", 23, 2, 24, 2),
    Sketcher.Constraint("Horizontal", 22, 2, 25, 2),
    Sketcher.Constraint("Horizontal", 24, 2, 27, 2),
    Sketcher.Constraint("Horizontal", 19, 2, 28, 2),
    Sketcher.Constraint("Horizontal", 29, 2, 30, 2),
    Sketcher.Constraint("Horizontal", 27, 2, 31, 2),
    Sketcher.Constraint("Horizontal", 26, 2, 32, 2),
    Sketcher.Constraint("Horizontal", 31, 2, 34, 2),
    Sketcher.Constraint("Vertical", 2, 2, 4, 2),
    Sketcher.Constraint("Vertical", 7, 2, 9, 2),
    Sketcher.Constraint("Equal", 5, 7),
    Sketcher.Constraint("Equal", 10, 14),
    Sketcher.Constraint("Equal", 17, 19),
    Sketcher.Constraint("Equal", 22, 26),
    Sketcher.Constraint("Equal", 29, 30),
    Sketcher.Constraint("DistanceX", 2, 1, 2, 2, Q("1.5 mm")),
    Sketcher.Constraint("DistanceX", 5, 2, 6, 2, Q("5 mm")),
    Sketcher.Constraint("DistanceX", 10, 2, 14, 2, Q("4 mm")),
    Sketcher.Constraint("DistanceX", 17, 2, 18, 2, Q("5 mm")),
    Sketcher.Constraint("DistanceX", 22, 2, 26, 2, Q("4 mm")),
    Sketcher.Constraint("DistanceX", 28, 2, 30, 2, Q("2 mm")),
    Sketcher.Constraint("DistanceX", 0, 2, 1, 2, Q("0.4 mm")),
    Sketcher.Constraint("DistanceX", -1, 1, 0, 2, Q("73.35 mm")),
    Sketcher.Constraint("DistanceY", -1, 1, 0, 2, Q("43.2625 mm")),
    Sketcher.Constraint("DistanceY", 2, 2, 4, 2, Q("1.5625 mm")),
])
pocket2 = body.newObject("PartDesign::Pocket", "Pocket001")
pocket2.Profile = sketch4
pocket2.Length = 5

doc.recompute()
